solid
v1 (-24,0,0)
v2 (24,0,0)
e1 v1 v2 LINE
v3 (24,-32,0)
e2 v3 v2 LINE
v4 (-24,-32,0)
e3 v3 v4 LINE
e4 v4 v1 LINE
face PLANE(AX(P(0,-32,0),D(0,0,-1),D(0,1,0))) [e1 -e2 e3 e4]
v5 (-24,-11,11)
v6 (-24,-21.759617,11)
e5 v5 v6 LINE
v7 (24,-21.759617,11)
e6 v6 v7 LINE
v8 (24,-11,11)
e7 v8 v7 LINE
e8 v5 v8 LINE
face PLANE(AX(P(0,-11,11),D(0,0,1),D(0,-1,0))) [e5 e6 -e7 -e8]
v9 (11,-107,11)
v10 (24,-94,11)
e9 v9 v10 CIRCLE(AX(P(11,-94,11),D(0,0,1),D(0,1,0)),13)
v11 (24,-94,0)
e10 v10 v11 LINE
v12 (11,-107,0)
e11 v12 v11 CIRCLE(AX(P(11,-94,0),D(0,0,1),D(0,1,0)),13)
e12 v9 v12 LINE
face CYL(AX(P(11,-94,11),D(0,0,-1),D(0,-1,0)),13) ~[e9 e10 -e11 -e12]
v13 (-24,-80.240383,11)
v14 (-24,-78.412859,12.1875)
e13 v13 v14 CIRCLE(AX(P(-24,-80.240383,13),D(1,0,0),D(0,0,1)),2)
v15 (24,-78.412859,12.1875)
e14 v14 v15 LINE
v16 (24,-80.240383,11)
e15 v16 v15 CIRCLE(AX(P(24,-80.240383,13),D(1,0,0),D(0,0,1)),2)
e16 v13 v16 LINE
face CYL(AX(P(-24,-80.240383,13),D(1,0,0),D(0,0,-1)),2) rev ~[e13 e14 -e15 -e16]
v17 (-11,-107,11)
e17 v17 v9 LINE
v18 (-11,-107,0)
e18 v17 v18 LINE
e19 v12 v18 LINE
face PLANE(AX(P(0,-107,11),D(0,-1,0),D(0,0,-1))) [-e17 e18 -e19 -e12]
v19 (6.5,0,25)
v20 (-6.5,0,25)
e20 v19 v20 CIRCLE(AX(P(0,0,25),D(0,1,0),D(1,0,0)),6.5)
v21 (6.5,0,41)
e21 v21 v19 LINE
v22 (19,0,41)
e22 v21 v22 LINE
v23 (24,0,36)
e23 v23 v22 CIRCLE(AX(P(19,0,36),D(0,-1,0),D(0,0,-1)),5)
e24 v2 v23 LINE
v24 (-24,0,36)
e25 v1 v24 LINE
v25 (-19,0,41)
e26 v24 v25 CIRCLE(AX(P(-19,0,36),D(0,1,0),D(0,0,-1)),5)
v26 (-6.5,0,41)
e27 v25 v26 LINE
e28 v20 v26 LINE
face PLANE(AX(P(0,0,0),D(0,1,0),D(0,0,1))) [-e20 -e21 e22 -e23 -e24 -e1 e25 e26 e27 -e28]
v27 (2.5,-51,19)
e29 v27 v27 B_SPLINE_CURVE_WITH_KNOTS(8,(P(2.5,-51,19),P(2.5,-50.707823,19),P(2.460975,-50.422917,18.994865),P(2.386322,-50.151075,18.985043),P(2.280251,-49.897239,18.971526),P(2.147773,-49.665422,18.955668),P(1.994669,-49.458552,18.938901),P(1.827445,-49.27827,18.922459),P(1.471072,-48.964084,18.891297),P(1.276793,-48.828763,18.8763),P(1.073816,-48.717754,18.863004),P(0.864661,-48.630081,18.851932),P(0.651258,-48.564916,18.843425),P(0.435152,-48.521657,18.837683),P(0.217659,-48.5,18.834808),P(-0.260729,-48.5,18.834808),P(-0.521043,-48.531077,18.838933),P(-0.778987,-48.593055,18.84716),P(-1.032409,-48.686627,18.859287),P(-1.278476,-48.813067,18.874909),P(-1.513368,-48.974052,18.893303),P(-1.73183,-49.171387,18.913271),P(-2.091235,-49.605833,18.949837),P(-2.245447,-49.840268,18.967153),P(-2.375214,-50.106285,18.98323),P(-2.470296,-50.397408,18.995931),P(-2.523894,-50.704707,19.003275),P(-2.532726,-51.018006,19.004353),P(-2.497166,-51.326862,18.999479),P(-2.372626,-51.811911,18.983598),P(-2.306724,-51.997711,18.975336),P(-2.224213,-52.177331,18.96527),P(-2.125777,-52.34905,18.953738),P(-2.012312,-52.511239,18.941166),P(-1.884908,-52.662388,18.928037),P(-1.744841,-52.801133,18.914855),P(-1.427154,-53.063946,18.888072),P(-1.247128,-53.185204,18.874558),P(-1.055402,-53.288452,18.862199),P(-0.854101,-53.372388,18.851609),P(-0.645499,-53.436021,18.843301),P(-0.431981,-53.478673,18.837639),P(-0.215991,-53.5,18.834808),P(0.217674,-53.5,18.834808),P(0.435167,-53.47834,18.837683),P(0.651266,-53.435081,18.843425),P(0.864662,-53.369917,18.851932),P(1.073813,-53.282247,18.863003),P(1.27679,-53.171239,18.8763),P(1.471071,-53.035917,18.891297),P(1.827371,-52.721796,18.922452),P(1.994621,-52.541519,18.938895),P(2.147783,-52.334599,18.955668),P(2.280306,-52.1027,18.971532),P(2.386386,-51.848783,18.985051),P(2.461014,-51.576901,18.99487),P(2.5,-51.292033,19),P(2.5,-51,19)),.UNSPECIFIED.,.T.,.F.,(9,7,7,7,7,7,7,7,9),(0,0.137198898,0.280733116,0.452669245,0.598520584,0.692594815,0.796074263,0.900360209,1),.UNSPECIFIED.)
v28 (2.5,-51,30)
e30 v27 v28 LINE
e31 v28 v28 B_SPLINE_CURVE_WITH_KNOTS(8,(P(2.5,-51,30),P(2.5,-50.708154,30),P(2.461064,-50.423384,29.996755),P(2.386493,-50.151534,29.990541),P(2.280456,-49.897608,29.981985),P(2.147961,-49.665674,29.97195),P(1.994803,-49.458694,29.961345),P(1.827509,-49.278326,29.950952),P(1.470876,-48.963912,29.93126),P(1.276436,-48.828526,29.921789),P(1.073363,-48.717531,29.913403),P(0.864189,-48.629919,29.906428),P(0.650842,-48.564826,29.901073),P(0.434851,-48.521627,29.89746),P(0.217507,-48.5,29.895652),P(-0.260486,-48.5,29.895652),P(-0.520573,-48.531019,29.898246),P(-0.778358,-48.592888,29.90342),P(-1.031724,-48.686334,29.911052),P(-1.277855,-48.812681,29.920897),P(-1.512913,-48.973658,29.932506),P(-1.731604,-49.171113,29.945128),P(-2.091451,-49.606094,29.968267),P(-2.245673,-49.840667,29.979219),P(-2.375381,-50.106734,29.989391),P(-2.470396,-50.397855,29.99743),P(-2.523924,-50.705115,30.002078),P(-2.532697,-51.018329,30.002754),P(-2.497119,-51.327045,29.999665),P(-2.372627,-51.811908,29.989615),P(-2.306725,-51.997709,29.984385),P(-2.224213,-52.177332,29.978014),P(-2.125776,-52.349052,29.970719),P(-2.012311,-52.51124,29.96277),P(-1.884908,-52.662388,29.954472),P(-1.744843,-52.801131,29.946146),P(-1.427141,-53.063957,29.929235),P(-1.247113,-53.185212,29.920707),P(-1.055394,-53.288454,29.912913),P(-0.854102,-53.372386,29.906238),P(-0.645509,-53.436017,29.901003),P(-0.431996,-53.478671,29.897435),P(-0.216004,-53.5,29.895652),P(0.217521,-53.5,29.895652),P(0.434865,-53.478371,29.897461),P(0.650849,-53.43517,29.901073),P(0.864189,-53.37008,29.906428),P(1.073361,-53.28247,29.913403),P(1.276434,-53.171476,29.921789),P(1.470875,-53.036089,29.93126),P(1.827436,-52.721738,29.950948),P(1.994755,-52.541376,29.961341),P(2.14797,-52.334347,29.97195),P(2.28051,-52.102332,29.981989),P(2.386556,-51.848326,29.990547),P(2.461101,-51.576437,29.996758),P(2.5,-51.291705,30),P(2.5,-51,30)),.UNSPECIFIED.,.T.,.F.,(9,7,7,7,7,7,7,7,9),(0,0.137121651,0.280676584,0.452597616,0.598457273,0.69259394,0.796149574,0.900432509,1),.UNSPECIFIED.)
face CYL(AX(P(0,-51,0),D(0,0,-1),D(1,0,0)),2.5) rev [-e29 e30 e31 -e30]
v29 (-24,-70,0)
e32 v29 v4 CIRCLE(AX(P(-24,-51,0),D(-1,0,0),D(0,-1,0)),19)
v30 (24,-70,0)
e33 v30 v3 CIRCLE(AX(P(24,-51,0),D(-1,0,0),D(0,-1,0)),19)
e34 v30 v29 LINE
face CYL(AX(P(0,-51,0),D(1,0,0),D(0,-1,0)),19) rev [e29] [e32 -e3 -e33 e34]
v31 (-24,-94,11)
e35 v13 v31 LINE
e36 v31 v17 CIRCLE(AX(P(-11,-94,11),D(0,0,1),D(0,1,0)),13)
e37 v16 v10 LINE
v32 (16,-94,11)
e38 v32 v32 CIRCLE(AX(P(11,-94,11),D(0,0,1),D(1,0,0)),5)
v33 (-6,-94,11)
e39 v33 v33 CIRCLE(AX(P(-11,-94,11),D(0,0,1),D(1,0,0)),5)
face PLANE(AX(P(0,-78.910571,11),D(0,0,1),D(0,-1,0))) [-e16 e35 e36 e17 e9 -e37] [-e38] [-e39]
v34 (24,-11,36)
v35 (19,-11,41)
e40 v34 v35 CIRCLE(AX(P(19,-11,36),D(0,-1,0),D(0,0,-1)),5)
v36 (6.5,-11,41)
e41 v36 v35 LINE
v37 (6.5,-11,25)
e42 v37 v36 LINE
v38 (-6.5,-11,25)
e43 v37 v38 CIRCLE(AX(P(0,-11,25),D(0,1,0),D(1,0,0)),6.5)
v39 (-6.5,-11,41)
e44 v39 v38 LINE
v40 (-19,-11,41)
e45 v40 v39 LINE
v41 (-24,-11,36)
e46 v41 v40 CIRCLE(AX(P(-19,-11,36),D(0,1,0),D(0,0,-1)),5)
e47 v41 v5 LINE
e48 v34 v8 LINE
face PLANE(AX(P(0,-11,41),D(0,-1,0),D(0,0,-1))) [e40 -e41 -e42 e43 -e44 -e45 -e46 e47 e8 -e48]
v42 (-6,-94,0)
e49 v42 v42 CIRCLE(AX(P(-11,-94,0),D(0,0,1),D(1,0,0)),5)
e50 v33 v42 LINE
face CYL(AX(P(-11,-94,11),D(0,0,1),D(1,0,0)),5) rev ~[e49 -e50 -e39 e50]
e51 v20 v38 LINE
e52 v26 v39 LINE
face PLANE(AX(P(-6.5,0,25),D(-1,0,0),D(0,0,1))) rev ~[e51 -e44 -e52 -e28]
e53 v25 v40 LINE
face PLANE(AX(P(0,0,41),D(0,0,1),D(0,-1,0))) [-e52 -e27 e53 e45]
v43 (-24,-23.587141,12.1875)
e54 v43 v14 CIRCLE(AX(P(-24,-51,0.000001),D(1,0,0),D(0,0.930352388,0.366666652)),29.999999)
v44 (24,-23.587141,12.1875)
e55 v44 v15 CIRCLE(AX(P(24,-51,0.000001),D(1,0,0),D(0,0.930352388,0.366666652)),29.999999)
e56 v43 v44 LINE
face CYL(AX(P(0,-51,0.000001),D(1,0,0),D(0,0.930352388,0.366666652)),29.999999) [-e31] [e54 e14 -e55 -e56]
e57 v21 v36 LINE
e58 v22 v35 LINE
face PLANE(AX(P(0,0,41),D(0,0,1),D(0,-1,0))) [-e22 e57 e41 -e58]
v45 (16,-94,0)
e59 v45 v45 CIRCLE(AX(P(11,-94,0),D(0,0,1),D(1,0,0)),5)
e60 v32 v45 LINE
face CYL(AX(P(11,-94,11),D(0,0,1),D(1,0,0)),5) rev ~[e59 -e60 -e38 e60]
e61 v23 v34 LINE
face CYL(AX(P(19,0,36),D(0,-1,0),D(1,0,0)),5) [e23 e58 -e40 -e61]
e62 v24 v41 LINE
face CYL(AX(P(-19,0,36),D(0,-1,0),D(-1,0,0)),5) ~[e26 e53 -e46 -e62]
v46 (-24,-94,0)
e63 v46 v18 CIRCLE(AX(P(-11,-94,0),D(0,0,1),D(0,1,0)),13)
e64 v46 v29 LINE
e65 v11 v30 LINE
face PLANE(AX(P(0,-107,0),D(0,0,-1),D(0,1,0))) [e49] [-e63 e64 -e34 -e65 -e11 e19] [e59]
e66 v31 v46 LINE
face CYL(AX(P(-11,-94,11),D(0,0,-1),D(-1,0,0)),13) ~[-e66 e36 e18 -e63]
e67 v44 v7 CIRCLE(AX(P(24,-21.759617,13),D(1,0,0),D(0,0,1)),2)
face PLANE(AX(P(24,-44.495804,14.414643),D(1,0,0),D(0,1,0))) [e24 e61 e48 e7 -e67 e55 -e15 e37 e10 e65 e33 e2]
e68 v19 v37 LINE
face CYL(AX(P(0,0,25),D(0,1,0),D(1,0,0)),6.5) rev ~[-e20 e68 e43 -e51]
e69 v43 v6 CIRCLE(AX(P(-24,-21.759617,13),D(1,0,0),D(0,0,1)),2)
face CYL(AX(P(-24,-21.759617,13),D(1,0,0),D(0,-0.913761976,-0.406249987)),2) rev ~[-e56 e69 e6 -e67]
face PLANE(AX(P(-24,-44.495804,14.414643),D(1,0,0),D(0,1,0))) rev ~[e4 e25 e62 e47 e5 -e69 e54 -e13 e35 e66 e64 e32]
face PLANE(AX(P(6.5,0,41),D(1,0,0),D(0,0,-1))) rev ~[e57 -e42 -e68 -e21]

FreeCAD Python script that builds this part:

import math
import FreeCAD as App
import Part
import Sketcher

V = App.Vector
Q = App.Units.Quantity


def edges_at(feature, points):
    """Names of the edges that pass closest to the given points."""
    edges = feature.Shape.Edges
    near = lambda p: min(range(len(edges)), key=lambda i: edges[i].distToShape(Part.Vertex(*p))[0])
    return sorted({f"Edge{near(p) + 1}" for p in points})

doc = App.newDocument("Part")
body = doc.addObject("PartDesign::Body", "Body")

# Sketch on YZ plane
sketch1 = body.newObject("Sketcher::SketchObject", "Sketch")
sketch1.AttachmentSupport = (doc.getObject("YZ_Plane"), [""])
sketch1.MapMode = "FlatFace"
sketch1.addGeometry(Part.LineSegment(V(-32, 0, 0), V(0, 0, 0)), False)
sketch1.addGeometry(Part.LineSegment(V(0, 0, 0), V(0, 41, 0)), False)
sketch1.addGeometry(Part.LineSegment(V(0, 41, 0), V(-11, 41, 0)), False)
sketch1.addGeometry(Part.LineSegment(V(-11, 41, 0), V(-11, 11, 0)), False)
sketch1.addGeometry(Part.LineSegment(V(-11, 11, 0), V(-23, 11, 0)), False)
sketch1.addGeometry(Part.ArcOfCircle(Part.Circle(V(-51, 0, 0), V(0, 0, 1), 30), math.radians(22), math.radians(158)), False)
sketch1.addGeometry(Part.LineSegment(V(-79, 11, 0), V(-107, 11, 0)), False)
sketch1.addGeometry(Part.LineSegment(V(-107, 11, 0), V(-107, 0, 0)), False)
sketch1.addGeometry(Part.LineSegment(V(-107, 0, 0), V(-70, 0, 0)), False)
sketch1.addGeometry(Part.ArcOfCircle(Part.Circle(V(-51, 0, 0), V(0, 0, 1), 19), math.radians(0), math.radians(180)), False)
sketch1.addConstraint(Sketcher.Constraint("Coincident", 0, 2, 1, 1))
sketch1.addConstraint(Sketcher.Constraint("Coincident", 1, 2, 2, 1))
sketch1.addConstraint(Sketcher.Constraint("Coincident", 2, 2, 3, 1))
sketch1.addConstraint(Sketcher.Constraint("Coincident", 3, 2, 4, 1))
sketch1.addConstraint(Sketcher.Constraint("Coincident", 4, 2, 5, 1))
sketch1.addConstraint(Sketcher.Constraint("Coincident", 5, 2, 6, 1))
sketch1.addConstraint(Sketcher.Constraint("Coincident", 6, 2, 7, 1))
sketch1.addConstraint(Sketcher.Constraint("Coincident", 7, 2, 8, 1))
sketch1.addConstraint(Sketcher.Constraint("Coincident", 8, 2, 9, 2))
sketch1.addConstraint(Sketcher.Constraint("Coincident", 9, 1, 0, 1))
sketch1.addConstraint(Sketcher.Constraint("Horizontal", 0))
sketch1.addConstraint(Sketcher.Constraint("Vertical", 1))
sketch1.addConstraint(Sketcher.Constraint("Horizontal", 2))
sketch1.addConstraint(Sketcher.Constraint("Vertical", 3))
sketch1.addConstraint(Sketcher.Constraint("Horizontal", 4))
sketch1.addConstraint(Sketcher.Constraint("Horizontal", 6))
sketch1.addConstraint(Sketcher.Constraint("Vertical", 7))
sketch1.addConstraint(Sketcher.Constraint("Horizontal", 8))
sketch1.addConstraint(Sketcher.Constraint("Coincident", 0, 2, -1, 1))
sketch1.addConstraint(Sketcher.Constraint("Coincident", 9, 3, 5, 3))
sketch1.addConstraint(Sketcher.Constraint("PointOnObject", 5, 3, -1))
sketch1.addConstraint(Sketcher.Constraint("PointOnObject", 7, 2, -1))
sketch1.addConstraint(Sketcher.Constraint("Horizontal", 4, 2, 5, 2))
sketch1.addConstraint(Sketcher.Constraint("Equal", 2, 7))
sketch1.addConstraint(Sketcher.Constraint("Radius", 5, Q("29.999999 mm")))
sketch1.addConstraint(Sketcher.Constraint("Radius", 9, Q("19 mm")))
sketch1.addConstraint(Sketcher.Constraint("DistanceX", 0, 1, 0, 2, Q("32 mm")))
sketch1.addConstraint(Sketcher.Constraint("DistanceX", 2, 2, 2, 1, Q("11 mm")))
sketch1.addConstraint(Sketcher.Constraint("DistanceX", 8, 1, 8, 2, Q("37 mm")))
sketch1.addConstraint(Sketcher.Constraint("DistanceY", 1, 1, 1, 2, Q("41 mm")))
pad1 = body.newObject("PartDesign::Pad", "Pad")
pad1.Profile = sketch1
pad1.Length = 48
pad1.Midplane = True

# Sketch on XZ plane
sketch2 = body.newObject("Sketcher::SketchObject", "Sketch001")
sketch2.AttachmentSupport = (doc.getObject("XZ_Plane"), [""])
sketch2.MapMode = "FlatFace"
sketch2.addGeometry(Part.ArcOfCircle(Part.Circle(V(0, 25, 0), V(0, 0, 1), 6), math.radians(180), math.radians(360)), False)
sketch2.addGeometry(Part.LineSegment(V(-6, 25, 0), V(-6, 41, 0)), False)
sketch2.addGeometry(Part.LineSegment(V(-6, 41, 0), V(6, 41, 0)), False)
sketch2.addGeometry(Part.LineSegment(V(6, 41, 0), V(6, 25, 0)), False)
sketch2.addConstraint(Sketcher.Constraint("Tangent", 0, 1, 1, 1))
sketch2.addConstraint(Sketcher.Constraint("Coincident", 1, 2, 2, 1))
sketch2.addConstraint(Sketcher.Constraint("Coincident", 2, 2, 3, 1))
sketch2.addConstraint(Sketcher.Constraint("Tangent", 3, 2, 0, 2))
sketch2.addConstraint(Sketcher.Constraint("Vertical", 1))
sketch2.addConstraint(Sketcher.Constraint("Horizontal", 2))
sketch2.addConstraint(Sketcher.Constraint("Vertical", 3))
sketch2.addConstraint(Sketcher.Constraint("PointOnObject", 0, 3, -2))
sketch2.addConstraint(Sketcher.Constraint("Radius", 0, Q("6.5 mm")))
sketch2.addConstraint(Sketcher.Constraint("DistanceY", 1, 1, 1, 2, Q("16 mm")))
sketch2.addConstraint(Sketcher.Constraint("DistanceY", -1, 1, 0, 3, Q("25 mm")))
pocket1 = body.newObject("PartDesign::Pocket", "Pocket")
pocket1.Profile = sketch2
pocket1.Length = 20.5
pocket1.Reversed = True
doc.recompute()

fillet = body.newObject("PartDesign::Fillet", "Fillet")
fillet.Base = (pocket1, edges_at(pocket1, [(-24, -5.5, 41), (24, -5.5, 41)]))
fillet.Radius = 5
doc.recompute()

fillet2 = body.newObject("PartDesign::Fillet", "Fillet001")
fillet2.Base = (fillet, edges_at(fillet, [(-24, -107, 5.5), (24, -107, 5.5)]))
fillet2.Radius = 13

# Sketch on XY plane
sketch3 = body.newObject("Sketcher::SketchObject", "Sketch002")
sketch3.AttachmentSupport = (doc.getObject("XY_Plane"), [""])
sketch3.MapMode = "FlatFace"
sketch3.AttachmentOffset = App.Placement(V(0, 0, 11), App.Rotation())
sketch3.addGeometry(Part.Circle(V(-11, -94, 0), V(0, 0, 1), 5), False)
sketch3.addGeometry(Part.Circle(V(11, -94, 0), V(0, 0, 1), 5), False)
sketch3.addConstraint(Sketcher.Constraint("Equal", 0, 1))
sketch3.addConstraint(Sketcher.Constraint("Symmetric", 0, 3, 1, 3, -2))
sketch3.addConstraint(Sketcher.Constraint("Diameter", 0, Q("10 mm")))
sketch3.addConstraint(Sketcher.Constraint("DistanceX", 0, 3, -1, 1, Q("11 mm")))
sketch3.addConstraint(Sketcher.Constraint("DistanceY", 0, 3, -1, 1, Q("94 mm")))
pocket2 = body.newObject("PartDesign::Pocket", "Pocket001")
pocket2.Profile = sketch3
pocket2.Length = 25

# Sketch on XY plane
sketch4 = body.newObject("Sketcher::SketchObject", "Sketch003")
sketch4.AttachmentSupport = (doc.getObject("XY_Plane"), [""])
sketch4.MapMode = "FlatFace"
sketch4.addGeometry(Part.Circle(V(0, -51, 0), V(0, 0, 1), 2.5), False)
sketch4.addConstraint(Sketcher.Constraint("PointOnObject", 0, 3, -2))
sketch4.addConstraint(Sketcher.Constraint("Diameter", 0, Q("5 mm")))
sketch4.addConstraint(Sketcher.Constraint("DistanceY", 0, 3, -1, 1, Q("51 mm")))
pocket3 = body.newObject("PartDesign::Pocket", "Pocket002")
pocket3.Profile = sketch4
pocket3.Length = 38.6
pocket3.Reversed = True
doc.recompute()

fillet3 = body.newObject("PartDesign::Fillet", "Fillet002")
fillet3.Base = (pocket3, edges_at(pocket3, [(0, -78.911, 11), (0, -23.089, 11)]))
fillet3.Radius = 2

doc.recompute()
